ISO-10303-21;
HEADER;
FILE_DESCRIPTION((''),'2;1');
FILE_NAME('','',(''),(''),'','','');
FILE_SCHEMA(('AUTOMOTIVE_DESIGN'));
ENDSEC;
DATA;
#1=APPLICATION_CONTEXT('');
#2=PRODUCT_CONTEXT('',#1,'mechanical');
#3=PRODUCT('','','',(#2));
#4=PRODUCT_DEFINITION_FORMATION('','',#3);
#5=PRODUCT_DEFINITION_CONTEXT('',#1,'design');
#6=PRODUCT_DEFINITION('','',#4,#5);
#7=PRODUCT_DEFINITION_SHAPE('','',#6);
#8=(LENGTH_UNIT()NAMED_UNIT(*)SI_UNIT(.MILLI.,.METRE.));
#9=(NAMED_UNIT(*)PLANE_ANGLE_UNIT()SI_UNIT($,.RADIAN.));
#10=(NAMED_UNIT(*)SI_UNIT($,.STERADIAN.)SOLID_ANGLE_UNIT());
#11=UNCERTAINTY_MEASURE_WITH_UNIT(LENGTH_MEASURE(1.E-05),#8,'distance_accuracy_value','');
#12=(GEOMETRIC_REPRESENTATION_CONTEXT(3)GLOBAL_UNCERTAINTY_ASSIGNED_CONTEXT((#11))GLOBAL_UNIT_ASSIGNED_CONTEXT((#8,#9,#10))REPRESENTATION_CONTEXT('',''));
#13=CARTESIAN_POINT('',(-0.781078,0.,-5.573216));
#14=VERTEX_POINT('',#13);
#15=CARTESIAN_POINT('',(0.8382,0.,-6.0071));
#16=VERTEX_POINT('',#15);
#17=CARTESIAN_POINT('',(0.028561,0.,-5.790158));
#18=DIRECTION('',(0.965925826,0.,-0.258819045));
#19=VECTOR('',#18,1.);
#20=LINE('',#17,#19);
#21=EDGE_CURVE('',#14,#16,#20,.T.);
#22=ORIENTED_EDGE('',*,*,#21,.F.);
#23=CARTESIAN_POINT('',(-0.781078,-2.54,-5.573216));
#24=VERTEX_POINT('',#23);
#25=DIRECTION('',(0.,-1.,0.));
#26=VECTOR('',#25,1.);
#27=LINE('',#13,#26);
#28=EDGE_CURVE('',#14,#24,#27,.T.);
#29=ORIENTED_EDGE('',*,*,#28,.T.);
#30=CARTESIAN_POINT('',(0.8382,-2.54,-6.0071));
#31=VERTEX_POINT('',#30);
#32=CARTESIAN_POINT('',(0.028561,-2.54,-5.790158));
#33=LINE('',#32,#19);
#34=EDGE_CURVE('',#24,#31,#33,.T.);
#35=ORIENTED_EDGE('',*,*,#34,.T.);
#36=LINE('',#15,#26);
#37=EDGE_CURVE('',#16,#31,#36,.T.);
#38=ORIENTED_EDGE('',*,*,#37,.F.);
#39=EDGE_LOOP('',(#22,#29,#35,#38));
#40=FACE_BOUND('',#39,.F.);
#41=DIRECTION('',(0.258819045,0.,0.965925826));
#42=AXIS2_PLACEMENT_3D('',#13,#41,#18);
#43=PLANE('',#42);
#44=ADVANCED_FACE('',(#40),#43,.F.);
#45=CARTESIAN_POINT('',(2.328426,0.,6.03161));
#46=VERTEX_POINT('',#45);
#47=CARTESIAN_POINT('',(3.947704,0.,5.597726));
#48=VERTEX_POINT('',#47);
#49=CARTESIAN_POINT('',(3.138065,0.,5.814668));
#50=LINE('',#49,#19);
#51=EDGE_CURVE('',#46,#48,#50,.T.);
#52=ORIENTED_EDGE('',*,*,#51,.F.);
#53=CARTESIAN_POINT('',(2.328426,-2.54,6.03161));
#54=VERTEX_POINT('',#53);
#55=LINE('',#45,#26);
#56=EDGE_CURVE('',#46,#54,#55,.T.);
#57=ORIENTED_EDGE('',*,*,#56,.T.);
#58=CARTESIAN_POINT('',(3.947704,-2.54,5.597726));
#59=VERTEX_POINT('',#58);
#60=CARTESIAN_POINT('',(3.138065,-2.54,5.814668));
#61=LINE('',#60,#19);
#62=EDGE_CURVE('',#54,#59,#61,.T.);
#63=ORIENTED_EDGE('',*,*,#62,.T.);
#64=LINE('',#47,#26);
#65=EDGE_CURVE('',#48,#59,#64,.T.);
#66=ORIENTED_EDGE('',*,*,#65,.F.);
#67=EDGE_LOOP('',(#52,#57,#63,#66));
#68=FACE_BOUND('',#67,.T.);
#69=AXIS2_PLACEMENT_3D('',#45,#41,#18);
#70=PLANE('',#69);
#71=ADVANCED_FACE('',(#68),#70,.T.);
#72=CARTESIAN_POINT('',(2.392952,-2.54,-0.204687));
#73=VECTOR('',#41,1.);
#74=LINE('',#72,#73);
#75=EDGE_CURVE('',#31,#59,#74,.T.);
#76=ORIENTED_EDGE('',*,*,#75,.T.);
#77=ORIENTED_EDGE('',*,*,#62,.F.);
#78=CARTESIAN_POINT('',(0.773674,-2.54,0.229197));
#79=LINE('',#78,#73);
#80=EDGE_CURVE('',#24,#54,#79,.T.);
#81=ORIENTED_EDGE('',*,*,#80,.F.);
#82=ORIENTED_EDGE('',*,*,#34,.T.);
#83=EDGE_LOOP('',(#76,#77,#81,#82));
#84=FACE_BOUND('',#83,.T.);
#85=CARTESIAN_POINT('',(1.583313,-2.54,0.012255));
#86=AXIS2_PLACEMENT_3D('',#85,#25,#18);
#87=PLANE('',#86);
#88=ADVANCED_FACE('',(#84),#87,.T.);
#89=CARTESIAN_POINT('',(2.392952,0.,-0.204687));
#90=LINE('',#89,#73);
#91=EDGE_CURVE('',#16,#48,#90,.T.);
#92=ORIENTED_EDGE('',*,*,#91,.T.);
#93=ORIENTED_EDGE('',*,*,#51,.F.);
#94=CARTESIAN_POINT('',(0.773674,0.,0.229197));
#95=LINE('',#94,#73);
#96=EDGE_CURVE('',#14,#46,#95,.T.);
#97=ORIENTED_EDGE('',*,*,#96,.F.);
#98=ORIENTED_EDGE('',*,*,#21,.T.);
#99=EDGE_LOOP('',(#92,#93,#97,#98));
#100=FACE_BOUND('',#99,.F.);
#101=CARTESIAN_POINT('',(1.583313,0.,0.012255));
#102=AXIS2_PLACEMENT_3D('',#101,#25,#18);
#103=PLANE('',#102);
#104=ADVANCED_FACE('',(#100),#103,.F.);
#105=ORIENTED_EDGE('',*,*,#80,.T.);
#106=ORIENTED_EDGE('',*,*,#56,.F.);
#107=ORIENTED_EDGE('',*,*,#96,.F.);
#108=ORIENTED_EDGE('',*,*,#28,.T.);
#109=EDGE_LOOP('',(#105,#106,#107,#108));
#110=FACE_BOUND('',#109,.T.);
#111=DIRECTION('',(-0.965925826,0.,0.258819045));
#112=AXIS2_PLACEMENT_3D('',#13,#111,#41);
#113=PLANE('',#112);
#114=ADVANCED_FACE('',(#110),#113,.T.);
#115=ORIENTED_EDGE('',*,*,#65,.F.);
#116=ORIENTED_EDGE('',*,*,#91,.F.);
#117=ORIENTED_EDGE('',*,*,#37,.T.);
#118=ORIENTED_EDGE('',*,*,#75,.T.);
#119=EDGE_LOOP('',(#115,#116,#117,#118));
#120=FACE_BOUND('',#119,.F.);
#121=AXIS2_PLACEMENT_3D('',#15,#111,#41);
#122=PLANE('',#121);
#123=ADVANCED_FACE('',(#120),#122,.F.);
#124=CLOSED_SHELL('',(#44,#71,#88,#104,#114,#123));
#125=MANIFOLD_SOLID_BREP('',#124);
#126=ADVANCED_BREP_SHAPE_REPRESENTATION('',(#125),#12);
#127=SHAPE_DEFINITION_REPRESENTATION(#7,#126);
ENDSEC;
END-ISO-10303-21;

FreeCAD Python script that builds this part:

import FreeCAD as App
import Part
import Sketcher

V = App.Vector
Q = App.Units.Quantity

doc = App.newDocument("Part")
params = doc.addObject("Spreadsheet::Sheet", "Params")
for row, (alias, value) in enumerate([
    ("sketch1_width", "0.066 in"),
    ("sketch1_height", "0.473 in"),
    ("pad1_length", "0.1 in"),
], start=1):
    params.set(f"A{row}", alias)
    params.set(f"B{row}", "=" + value)
    params.setAlias(f"B{row}", alias)

body = doc.addObject("PartDesign::Body", "Body")

# Sketch on XZ plane
sketch1 = body.newObject("Sketcher::SketchObject", "Sketch")
sketch1.AttachmentSupport = (doc.getObject("XZ_Plane"), [""])
sketch1.MapMode = "FlatFace"
sketch1.addGeometry([
    Part.LineSegment(V(-0.8, 6, 0), V(-0.8, -6, 0)),
    Part.LineSegment(V(-0.8, -6, 0), V(0.8, -6, 0)),
    Part.LineSegment(V(0.8, -6, 0), V(0.8, 6, 0)),
    Part.LineSegment(V(0.8, 6, 0), V(-0.8, 6, 0)),
], False)
sketch1.addConstraint([
    Sketcher.Constraint("Coincident", 0, 2, 1, 1),
    Sketcher.Constraint("Coincident", 1, 2, 2, 1),
    Sketcher.Constraint("Coincident", 2, 2, 3, 1),
    Sketcher.Constraint("Coincident", 3, 2, 0, 1),
    Sketcher.Constraint("Vertical", 0),
    Sketcher.Constraint("Horizontal", 1),
    Sketcher.Constraint("Vertical", 2),
    Sketcher.Constraint("Horizontal", 3),
    Sketcher.Constraint("Symmetric", 0, 2, 2, 2, -1, 1),
    Sketcher.Constraint("DistanceX", 1, 1, 1, 2, Q("0.066 in")),
    Sketcher.Constraint("DistanceY", 0, 2, 0, 1, Q("0.473 in")),
])
sketch1.setExpression("Constraints[9]", "Params.sketch1_width")
sketch1.setExpression("Constraints[10]", "Params.sketch1_height")
pad1 = body.newObject("PartDesign::Pad", "Pad")
pad1.Profile = sketch1
pad1.setExpression("Length", "Params.pad1_length")
body2 = doc.addObject("PartDesign::Body", "Body001")
doc.recompute()

body.Placement = App.Placement(V(1.583313, 0, 0.012255), App.Rotation(V(0, 1, 0), 15))
boolean = body2.newObject("PartDesign::Boolean", "Boolean")
boolean.Type = "Fuse"
boolean.addObjects([body])

doc.recompute()
